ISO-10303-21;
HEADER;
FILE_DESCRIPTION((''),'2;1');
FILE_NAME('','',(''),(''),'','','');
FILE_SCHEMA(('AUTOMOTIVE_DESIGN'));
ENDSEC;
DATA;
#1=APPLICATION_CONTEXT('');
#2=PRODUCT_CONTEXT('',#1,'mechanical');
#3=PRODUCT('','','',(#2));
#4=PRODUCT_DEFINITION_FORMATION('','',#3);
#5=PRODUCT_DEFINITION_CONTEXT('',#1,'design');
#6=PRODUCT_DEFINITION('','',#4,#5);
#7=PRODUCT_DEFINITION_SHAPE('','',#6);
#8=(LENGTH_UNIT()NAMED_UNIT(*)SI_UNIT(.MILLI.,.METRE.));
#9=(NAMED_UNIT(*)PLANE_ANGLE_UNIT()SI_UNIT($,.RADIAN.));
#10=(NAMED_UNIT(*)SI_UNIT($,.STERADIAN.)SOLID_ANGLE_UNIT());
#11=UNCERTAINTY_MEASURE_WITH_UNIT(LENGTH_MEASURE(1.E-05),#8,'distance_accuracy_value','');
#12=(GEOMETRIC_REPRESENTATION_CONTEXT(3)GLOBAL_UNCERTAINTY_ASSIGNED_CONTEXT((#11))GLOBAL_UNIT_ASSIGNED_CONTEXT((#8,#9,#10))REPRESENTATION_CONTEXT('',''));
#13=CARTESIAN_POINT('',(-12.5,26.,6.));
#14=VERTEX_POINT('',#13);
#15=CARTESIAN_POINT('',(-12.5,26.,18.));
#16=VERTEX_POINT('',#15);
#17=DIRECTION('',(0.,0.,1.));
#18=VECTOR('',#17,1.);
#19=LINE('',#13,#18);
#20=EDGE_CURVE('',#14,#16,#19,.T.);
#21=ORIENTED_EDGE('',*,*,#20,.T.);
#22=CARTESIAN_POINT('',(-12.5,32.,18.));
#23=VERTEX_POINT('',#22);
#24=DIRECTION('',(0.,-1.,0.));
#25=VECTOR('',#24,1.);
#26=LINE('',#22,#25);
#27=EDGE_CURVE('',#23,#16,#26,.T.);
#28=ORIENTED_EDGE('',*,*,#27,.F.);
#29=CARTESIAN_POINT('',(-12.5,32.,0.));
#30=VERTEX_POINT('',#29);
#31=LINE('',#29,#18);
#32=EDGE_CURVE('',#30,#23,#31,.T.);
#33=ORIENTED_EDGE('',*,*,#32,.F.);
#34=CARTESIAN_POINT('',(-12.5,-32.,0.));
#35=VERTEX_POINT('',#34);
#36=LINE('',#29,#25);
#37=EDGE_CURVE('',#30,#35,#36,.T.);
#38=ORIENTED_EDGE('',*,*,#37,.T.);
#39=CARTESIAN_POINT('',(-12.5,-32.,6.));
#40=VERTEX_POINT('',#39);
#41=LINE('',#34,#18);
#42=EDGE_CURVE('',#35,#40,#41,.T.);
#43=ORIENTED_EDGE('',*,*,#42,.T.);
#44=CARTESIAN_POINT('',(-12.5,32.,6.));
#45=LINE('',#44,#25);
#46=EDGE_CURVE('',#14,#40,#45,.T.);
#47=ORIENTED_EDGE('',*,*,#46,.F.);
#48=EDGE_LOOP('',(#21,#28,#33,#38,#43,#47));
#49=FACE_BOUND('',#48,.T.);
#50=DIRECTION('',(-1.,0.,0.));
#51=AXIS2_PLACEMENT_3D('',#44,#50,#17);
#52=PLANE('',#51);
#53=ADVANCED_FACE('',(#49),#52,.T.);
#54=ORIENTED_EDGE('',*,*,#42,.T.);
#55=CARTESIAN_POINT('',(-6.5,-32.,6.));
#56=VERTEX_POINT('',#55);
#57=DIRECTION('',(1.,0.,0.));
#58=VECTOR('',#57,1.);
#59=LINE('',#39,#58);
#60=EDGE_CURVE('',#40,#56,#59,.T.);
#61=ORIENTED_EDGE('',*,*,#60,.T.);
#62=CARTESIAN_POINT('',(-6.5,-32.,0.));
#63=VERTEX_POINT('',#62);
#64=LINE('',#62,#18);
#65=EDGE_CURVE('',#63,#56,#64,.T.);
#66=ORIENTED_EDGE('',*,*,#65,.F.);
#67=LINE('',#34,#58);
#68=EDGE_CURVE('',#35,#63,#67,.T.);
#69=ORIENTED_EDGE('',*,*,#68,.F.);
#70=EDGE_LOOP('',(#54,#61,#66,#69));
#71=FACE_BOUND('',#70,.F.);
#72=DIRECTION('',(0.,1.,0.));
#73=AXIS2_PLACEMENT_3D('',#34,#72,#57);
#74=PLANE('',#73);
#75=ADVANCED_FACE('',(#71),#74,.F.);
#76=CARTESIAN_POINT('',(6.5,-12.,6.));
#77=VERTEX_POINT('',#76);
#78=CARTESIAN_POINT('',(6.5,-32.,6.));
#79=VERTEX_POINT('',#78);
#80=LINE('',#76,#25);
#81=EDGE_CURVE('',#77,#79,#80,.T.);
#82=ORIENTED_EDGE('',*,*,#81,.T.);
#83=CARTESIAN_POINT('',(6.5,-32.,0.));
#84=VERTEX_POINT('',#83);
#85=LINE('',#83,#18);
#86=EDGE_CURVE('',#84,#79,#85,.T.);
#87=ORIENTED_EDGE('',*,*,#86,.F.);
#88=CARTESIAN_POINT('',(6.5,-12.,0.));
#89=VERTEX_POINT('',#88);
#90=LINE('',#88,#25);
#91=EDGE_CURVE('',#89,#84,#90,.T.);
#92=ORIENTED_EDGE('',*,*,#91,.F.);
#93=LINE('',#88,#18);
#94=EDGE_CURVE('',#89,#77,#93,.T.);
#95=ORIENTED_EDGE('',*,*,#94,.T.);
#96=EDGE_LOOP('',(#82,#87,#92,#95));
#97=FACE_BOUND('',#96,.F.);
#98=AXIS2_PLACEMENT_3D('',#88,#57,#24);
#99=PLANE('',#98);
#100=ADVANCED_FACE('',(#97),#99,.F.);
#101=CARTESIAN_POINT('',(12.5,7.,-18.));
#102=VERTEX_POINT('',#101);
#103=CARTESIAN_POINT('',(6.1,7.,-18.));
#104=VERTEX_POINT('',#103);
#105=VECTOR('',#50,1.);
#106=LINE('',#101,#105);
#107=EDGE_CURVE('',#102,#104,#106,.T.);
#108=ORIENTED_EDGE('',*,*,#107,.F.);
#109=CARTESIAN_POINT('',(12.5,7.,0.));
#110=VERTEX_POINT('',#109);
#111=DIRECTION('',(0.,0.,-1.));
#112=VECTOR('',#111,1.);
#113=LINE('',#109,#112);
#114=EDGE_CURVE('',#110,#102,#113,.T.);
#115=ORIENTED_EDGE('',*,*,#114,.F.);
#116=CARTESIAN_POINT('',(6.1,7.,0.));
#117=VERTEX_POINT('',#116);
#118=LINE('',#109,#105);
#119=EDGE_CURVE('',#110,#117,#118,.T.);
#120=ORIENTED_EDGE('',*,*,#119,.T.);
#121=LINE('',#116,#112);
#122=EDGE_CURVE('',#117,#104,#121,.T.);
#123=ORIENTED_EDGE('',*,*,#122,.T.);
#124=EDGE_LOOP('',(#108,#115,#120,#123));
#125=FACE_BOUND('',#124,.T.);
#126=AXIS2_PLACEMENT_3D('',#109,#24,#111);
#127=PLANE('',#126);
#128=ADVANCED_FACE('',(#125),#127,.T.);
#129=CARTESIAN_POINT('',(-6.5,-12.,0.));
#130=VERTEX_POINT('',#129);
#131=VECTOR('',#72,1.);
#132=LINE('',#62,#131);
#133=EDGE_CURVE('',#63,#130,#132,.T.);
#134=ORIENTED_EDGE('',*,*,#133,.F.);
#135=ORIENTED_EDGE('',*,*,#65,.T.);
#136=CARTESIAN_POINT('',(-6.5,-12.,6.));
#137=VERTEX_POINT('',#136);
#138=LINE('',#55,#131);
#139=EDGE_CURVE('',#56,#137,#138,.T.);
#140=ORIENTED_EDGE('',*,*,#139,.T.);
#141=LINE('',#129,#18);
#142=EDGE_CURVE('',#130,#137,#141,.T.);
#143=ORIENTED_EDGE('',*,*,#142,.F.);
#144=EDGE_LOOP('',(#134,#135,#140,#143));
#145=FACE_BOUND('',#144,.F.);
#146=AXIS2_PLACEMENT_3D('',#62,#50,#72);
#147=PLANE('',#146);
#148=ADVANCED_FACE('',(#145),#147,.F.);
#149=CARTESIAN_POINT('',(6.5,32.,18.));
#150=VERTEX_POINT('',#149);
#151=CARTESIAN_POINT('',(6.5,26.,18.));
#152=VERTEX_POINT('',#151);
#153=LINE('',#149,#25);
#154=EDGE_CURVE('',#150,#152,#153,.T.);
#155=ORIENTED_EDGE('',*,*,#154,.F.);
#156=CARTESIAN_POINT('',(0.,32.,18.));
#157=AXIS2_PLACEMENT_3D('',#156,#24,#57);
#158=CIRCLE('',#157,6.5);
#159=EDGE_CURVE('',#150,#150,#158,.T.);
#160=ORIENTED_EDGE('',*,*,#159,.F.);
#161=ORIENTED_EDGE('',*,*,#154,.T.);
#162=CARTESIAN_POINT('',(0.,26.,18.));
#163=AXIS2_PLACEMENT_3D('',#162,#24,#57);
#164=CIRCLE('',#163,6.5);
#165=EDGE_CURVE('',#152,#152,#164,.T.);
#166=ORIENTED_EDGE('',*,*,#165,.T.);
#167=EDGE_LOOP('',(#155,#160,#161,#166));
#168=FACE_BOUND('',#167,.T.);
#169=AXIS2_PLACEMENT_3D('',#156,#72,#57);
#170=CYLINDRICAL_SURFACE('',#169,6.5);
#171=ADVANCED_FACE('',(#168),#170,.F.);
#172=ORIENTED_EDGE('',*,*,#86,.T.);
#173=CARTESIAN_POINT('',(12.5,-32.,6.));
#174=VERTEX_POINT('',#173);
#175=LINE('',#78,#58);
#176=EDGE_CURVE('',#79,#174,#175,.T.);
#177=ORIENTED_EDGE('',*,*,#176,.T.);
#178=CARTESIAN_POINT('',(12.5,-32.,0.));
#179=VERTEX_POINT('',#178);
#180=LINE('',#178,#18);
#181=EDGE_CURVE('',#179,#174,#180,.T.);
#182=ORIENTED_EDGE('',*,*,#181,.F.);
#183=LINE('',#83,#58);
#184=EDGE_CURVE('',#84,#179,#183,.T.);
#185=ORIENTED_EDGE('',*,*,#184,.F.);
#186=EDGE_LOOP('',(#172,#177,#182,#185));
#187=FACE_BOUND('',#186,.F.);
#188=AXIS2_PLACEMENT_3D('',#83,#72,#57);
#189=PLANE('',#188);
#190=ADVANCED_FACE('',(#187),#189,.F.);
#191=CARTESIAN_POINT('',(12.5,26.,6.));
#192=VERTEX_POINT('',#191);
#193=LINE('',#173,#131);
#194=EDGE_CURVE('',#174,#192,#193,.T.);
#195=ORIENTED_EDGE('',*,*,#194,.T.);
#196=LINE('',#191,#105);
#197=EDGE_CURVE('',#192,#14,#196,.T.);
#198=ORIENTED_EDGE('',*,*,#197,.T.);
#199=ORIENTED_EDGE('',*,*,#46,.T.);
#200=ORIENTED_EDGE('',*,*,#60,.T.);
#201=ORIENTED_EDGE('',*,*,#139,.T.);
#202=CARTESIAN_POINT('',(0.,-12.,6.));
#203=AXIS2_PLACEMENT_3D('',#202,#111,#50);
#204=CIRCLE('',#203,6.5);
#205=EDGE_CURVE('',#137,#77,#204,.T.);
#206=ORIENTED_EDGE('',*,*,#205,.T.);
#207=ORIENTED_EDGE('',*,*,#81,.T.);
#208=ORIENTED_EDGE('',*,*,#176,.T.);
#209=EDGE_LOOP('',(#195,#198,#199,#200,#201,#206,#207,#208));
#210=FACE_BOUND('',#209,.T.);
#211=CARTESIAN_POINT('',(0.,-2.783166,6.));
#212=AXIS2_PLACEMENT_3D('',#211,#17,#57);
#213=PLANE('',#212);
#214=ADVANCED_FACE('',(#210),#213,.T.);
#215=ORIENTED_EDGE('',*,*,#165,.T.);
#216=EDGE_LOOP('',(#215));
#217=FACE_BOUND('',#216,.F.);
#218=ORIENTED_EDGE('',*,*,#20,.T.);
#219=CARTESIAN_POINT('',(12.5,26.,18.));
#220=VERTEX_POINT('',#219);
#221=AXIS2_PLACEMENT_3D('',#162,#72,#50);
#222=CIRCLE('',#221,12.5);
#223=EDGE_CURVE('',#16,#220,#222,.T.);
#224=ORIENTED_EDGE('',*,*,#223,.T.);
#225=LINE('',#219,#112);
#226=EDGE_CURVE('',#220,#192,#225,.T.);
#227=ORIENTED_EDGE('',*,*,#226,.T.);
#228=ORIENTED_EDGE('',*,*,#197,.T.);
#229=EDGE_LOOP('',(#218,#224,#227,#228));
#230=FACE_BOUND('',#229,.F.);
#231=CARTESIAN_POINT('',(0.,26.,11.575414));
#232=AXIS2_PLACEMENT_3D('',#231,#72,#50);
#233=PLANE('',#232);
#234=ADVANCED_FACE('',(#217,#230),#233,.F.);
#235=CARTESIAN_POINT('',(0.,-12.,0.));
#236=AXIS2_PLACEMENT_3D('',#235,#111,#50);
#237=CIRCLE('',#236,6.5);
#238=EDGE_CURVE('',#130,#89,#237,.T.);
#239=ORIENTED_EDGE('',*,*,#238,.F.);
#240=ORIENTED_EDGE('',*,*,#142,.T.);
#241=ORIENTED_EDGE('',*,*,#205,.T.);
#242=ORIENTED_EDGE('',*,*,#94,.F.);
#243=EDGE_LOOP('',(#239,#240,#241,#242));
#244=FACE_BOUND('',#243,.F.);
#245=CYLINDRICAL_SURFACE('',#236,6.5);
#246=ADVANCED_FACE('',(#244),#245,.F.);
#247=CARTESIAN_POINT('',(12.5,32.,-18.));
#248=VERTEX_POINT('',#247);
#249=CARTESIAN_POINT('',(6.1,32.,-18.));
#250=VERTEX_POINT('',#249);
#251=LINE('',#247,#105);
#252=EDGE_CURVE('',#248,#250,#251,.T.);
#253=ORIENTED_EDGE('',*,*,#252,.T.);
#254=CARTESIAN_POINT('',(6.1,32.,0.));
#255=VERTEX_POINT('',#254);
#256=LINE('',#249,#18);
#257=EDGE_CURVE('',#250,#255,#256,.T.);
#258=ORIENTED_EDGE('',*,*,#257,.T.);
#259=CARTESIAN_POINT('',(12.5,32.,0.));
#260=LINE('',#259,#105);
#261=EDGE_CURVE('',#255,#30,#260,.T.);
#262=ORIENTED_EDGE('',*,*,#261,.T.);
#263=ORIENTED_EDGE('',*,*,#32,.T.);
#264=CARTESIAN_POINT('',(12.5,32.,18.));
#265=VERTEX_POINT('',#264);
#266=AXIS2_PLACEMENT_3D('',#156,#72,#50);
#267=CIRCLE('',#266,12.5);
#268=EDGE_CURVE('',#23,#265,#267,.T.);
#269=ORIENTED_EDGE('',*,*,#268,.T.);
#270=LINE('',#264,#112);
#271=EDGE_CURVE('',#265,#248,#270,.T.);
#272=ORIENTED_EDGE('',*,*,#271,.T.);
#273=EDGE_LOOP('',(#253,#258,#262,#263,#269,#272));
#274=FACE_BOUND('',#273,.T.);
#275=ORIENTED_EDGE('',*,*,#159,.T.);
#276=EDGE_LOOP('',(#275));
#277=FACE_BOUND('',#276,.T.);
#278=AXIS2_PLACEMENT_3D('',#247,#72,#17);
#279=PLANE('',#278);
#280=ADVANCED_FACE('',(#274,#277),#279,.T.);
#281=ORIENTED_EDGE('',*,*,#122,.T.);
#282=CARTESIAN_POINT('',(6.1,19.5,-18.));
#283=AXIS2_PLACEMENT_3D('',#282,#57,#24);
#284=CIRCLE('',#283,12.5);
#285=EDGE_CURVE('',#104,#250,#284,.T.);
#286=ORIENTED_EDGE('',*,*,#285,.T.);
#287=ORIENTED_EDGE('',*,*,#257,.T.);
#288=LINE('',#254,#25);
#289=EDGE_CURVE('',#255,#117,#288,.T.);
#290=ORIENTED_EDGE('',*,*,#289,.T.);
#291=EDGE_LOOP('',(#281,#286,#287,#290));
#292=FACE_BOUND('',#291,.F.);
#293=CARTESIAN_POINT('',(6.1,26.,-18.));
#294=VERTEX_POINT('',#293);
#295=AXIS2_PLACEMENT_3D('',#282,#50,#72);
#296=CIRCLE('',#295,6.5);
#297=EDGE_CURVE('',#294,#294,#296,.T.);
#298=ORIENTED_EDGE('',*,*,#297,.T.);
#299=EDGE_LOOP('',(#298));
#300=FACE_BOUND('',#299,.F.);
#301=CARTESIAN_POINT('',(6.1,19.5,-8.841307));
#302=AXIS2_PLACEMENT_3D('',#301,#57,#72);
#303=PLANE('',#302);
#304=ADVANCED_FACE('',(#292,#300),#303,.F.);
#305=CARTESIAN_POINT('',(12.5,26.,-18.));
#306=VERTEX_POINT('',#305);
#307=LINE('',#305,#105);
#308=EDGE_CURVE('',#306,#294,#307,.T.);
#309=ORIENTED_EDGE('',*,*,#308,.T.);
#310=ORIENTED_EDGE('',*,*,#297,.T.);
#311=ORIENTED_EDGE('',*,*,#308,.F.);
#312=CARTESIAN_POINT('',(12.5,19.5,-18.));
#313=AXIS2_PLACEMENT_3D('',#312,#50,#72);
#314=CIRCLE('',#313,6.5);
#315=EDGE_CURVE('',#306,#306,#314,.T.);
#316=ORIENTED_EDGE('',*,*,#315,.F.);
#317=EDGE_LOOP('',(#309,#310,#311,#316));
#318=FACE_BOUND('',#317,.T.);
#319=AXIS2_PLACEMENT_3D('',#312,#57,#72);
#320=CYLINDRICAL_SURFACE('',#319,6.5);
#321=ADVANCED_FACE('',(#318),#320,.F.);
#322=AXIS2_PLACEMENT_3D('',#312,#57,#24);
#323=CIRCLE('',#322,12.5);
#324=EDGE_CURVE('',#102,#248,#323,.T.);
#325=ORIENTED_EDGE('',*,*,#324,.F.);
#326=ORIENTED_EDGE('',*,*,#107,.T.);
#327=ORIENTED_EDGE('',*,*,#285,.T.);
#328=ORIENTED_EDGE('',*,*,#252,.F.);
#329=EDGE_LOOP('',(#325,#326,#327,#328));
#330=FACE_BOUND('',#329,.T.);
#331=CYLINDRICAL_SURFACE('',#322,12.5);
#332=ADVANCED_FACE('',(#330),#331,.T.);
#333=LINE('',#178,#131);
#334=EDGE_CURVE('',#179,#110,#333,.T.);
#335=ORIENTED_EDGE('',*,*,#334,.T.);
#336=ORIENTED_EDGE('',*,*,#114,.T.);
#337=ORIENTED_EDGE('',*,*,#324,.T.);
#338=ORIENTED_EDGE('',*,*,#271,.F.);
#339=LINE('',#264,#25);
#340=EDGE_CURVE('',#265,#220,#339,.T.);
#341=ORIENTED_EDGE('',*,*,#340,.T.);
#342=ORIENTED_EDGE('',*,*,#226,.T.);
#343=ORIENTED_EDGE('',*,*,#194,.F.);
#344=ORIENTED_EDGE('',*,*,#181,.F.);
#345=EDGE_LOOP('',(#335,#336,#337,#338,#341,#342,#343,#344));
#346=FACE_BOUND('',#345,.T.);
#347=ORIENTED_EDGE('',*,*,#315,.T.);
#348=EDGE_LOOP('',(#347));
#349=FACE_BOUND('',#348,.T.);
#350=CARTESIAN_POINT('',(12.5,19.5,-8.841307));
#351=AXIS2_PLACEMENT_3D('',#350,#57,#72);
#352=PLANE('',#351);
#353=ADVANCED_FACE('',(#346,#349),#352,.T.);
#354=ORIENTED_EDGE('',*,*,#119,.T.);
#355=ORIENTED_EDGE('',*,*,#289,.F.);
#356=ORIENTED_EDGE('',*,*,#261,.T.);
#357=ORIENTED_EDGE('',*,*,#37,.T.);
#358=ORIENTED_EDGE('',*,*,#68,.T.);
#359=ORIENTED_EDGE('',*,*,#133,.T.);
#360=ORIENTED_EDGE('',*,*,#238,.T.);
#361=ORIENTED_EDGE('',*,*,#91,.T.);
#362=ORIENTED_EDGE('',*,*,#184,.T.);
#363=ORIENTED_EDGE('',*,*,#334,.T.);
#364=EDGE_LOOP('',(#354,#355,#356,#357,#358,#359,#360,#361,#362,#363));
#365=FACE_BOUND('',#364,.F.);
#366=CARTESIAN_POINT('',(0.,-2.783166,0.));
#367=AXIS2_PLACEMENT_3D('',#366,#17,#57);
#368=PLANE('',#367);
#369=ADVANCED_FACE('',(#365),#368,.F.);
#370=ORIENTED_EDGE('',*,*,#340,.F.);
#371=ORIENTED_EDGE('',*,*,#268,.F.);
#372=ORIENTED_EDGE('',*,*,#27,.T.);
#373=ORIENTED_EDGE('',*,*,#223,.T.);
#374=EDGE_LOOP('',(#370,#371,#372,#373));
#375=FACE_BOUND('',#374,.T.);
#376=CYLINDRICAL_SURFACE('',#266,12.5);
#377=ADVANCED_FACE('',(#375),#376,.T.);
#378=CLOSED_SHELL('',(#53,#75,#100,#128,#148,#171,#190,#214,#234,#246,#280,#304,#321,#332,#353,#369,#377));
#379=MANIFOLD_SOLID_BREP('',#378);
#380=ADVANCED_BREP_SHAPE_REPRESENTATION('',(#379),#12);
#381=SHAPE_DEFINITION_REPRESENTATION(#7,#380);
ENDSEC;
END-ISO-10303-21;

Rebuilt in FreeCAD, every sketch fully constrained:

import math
import FreeCAD as App
import Part
import Sketcher

doc = App.newDocument("Part")
body = doc.addObject("PartDesign::Body", "Body")

sketch1 = body.newObject("Sketcher::SketchObject", "Sketch")
sketch1.AttachmentSupport = (doc.getObject("XY_Plane"), [""])
sketch1.MapMode = "FlatFace"
sketch1.addGeometry([
    Part.LineSegment(App.Vector(12, -32, 0), App.Vector(12, 32, 0)),
    Part.LineSegment(App.Vector(12, 32, 0), App.Vector(-12, 32, 0)),
    Part.LineSegment(App.Vector(-12, 32, 0), App.Vector(-12, -32, 0)),
    Part.LineSegment(App.Vector(-12, -32, 0), App.Vector(-6, -32, 0)),
    Part.LineSegment(App.Vector(-6, -32, 0), App.Vector(-6, -12, 0)),
    Part.ArcOfCircle(Part.Circle(App.Vector(0, -12, 0), App.Vector(0, 0, 1), 6), math.radians(0), math.radians(180)),
    Part.LineSegment(App.Vector(6, -12, 0), App.Vector(6, -32, 0)),
    Part.LineSegment(App.Vector(6, -32, 0), App.Vector(12, -32, 0)),
], False)
sketch1.addConstraint([
    Sketcher.Constraint("Coincident", 0, 2, 1, 1),
    Sketcher.Constraint("Coincident", 1, 2, 2, 1),
    Sketcher.Constraint("Coincident", 2, 2, 3, 1),
    Sketcher.Constraint("Coincident", 3, 2, 4, 1),
    Sketcher.Constraint("Tangent", 4, 2, 5, 2),
    Sketcher.Constraint("Tangent", 5, 1, 6, 1),
    Sketcher.Constraint("Coincident", 6, 2, 7, 1),
    Sketcher.Constraint("Coincident", 7, 2, 0, 1),
    Sketcher.Constraint("Vertical", 0),
    Sketcher.Constraint("Horizontal", 1),
    Sketcher.Constraint("Vertical", 2),
    Sketcher.Constraint("Horizontal", 3),
    Sketcher.Constraint("Vertical", 4),
    Sketcher.Constraint("Vertical", 6),
    Sketcher.Constraint("Horizontal", 7),
    Sketcher.Constraint("Symmetric", 0, 2, 2, 2, -1, 1),
    Sketcher.Constraint("Symmetric", 3, 2, 6, 2, -2),
    Sketcher.Constraint("Radius", 5, 6.5),
    Sketcher.Constraint("DistanceX", 1, 2, 1, 1, 25.0),
    Sketcher.Constraint("DistanceY", 0, 1, 0, 2, 64.0),
    Sketcher.Constraint("DistanceY", 4, 1, 4, 2, 20.0),
])
pad1 = body.newObject("PartDesign::Pad", "Pad")
pad1.Profile = sketch1
pad1.Length = 6

sketch2 = body.newObject("Sketcher::SketchObject", "Sketch001")
sketch2.AttachmentSupport = (doc.getObject("XZ_Plane"), [""])
sketch2.MapMode = "FlatFace"
sketch2.AttachmentOffset = App.Placement(App.Vector(0, 0, -32), App.Rotation())
sketch2.addGeometry([
    Part.LineSegment(App.Vector(12, 18, 0), App.Vector(12, 6, 0)),
    Part.LineSegment(App.Vector(12, 6, 0), App.Vector(-12, 6, 0)),
    Part.LineSegment(App.Vector(-12, 6, 0), App.Vector(-12, 18, 0)),
    Part.ArcOfCircle(Part.Circle(App.Vector(0, 18, 0), App.Vector(0, 0, 1), 12), math.radians(0), math.radians(180)),
    Part.Circle(App.Vector(0, 18, 0), App.Vector(0, 0, 1), 6),
], False)
sketch2.addConstraint([
    Sketcher.Constraint("Coincident", 0, 2, 1, 1),
    Sketcher.Constraint("Coincident", 1, 2, 2, 1),
    Sketcher.Constraint("Tangent", 2, 2, 3, 2),
    Sketcher.Constraint("Tangent", 3, 1, 0, 1),
    Sketcher.Constraint("Vertical", 0),
    Sketcher.Constraint("Horizontal", 1),
    Sketcher.Constraint("Vertical", 2),
    Sketcher.Constraint("Coincident", 4, 3, 3, 3),
    Sketcher.Constraint("PointOnObject", 3, 3, -2),
    Sketcher.Constraint("Diameter", 4, 13.0),
    Sketcher.Constraint("Radius", 3, 12.5),
    Sketcher.Constraint("DistanceY", 0, 2, 0, 1, 12.0),
    Sketcher.Constraint("DistanceY", -1, 1, 3, 3, 18.0),
])
pad2 = body.newObject("PartDesign::Pad", "Pad001")
pad2.Profile = sketch2
pad2.Length = 6

sketch3 = body.newObject("Sketcher::SketchObject", "Sketch002")
sketch3.AttachmentSupport = (doc.getObject("YZ_Plane"), [""])
sketch3.MapMode = "FlatFace"
sketch3.AttachmentOffset = App.Placement(App.Vector(0, 0, 12.5), App.Rotation())
sketch3.addGeometry([
    Part.LineSegment(App.Vector(32, -18, 0), App.Vector(32, 0, 0)),
    Part.LineSegment(App.Vector(32, 0, 0), App.Vector(7, 0, 0)),
    Part.LineSegment(App.Vector(7, 0, 0), App.Vector(7, -18, 0)),
    Part.ArcOfCircle(Part.Circle(App.Vector(20, -18, 0), App.Vector(0, 0, 1), 12), math.radians(180), math.radians(360)),
    Part.Circle(App.Vector(20, -18, 0), App.Vector(0, 0, 1), 6),
], False)
sketch3.addConstraint([
    Sketcher.Constraint("Coincident", 0, 2, 1, 1),
    Sketcher.Constraint("Coincident", 1, 2, 2, 1),
    Sketcher.Constraint("Tangent", 2, 2, 3, 1),
    Sketcher.Constraint("Tangent", 3, 2, 0, 1),
    Sketcher.Constraint("Vertical", 0),
    Sketcher.Constraint("Horizontal", 1),
    Sketcher.Constraint("Vertical", 2),
    Sketcher.Constraint("Coincident", 4, 3, 3, 3),
    Sketcher.Constraint("PointOnObject", 0, 2, -1),
    Sketcher.Constraint("Diameter", 4, 13.0),
    Sketcher.Constraint("Radius", 3, 12.5),
    Sketcher.Constraint("DistanceY", 0, 1, 0, 2, 18.0),
    Sketcher.Constraint("DistanceX", -1, 1, 0, 2, 32.0),
])
pad3 = body.newObject("PartDesign::Pad", "Pad002")
pad3.Profile = sketch3
pad3.Length = 6.4
pad3.Reversed = True

doc.recompute()
